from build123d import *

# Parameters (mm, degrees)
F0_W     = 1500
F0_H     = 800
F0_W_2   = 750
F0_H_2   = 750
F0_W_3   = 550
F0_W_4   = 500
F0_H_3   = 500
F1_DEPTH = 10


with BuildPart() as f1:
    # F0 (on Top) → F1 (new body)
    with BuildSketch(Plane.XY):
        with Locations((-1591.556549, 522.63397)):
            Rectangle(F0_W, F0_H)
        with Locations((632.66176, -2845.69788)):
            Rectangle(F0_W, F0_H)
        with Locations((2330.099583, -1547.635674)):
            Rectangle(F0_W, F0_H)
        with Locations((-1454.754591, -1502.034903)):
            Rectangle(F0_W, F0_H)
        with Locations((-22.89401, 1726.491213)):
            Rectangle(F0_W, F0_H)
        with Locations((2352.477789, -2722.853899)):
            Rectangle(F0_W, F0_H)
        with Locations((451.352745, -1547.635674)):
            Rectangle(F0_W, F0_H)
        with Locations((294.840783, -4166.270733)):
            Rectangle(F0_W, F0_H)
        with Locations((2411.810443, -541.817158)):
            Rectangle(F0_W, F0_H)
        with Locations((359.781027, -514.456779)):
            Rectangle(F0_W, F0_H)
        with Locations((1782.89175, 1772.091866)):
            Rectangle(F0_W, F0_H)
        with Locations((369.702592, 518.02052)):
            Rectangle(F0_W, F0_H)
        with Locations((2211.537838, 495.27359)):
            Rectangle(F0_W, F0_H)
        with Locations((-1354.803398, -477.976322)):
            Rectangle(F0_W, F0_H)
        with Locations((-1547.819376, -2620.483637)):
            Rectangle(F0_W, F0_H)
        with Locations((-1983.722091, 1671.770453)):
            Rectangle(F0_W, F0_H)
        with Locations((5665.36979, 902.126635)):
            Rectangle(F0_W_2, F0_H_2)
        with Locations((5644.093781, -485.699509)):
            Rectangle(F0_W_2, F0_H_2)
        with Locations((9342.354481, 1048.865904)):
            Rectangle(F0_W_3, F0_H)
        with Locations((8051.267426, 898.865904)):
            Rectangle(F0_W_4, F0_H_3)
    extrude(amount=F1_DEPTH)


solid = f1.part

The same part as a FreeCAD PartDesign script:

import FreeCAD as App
import Part
import Sketcher

V = App.Vector


def add_polygon(sketch, points):
    """Adds a closed chain of lines whose ends are joined by coincident constraints."""
    first, n = sketch.GeometryCount, len(points)
    for a, b in zip(points, points[1:] + points[:1]):
        sketch.addGeometry(Part.LineSegment(App.Vector(*a, 0), App.Vector(*b, 0)), False)
    for i in range(n):
        sketch.addConstraint(Sketcher.Constraint("Coincident", first + i, 2, first + (i + 1) % n, 1))

doc = App.newDocument("Part")
body = doc.addObject("PartDesign::Body", "Body")
body.AllowCompound = True

# Sketch on XY plane
sketch1 = body.newObject("Sketcher::SketchObject", "Sketch")
sketch1.AttachmentSupport = (doc.getObject("XY_Plane"), [""])
sketch1.MapMode = "FlatFace"
add_polygon(sketch1, [(-2342, 923), (-2342, 123), (-842, 123), (-842, 923)])  # lines 0-3
add_polygon(sketch1, [(-117, -2446), (-117, -3246), (1383, -3246), (1383, -2446)])  # lines 4-7
add_polygon(sketch1, [(1580, -1148), (1580, -1948), (3080, -1948), (3080, -1148)])  # lines 8-11
add_polygon(sketch1, [(-2205, -1102), (-2205, -1902), (-705, -1902), (-705, -1102)])  # lines 12-15
add_polygon(sketch1, [(-773, 2126), (-773, 1326), (727, 1326), (727, 2126)])  # lines 16-19
add_polygon(sketch1, [(1602, -2323), (1602, -3123), (3102, -3123), (3102, -2323)])  # lines 20-23
add_polygon(sketch1, [(-299, -1148), (-299, -1948), (1201, -1948), (1201, -1148)])  # lines 24-27
add_polygon(sketch1, [(-455, -3766), (-455, -4566), (1045, -4566), (1045, -3766)])  # lines 28-31
add_polygon(sketch1, [(1662, -142), (1662, -942), (3162, -942), (3162, -142)])  # lines 32-35
add_polygon(sketch1, [(-390, -114), (-390, -914), (1110, -914), (1110, -114)])  # lines 36-39
add_polygon(sketch1, [(1033, 2172), (1033, 1372), (2533, 1372), (2533, 2172)])  # lines 40-43
add_polygon(sketch1, [(-380, 918), (-380, 118), (1120, 118), (1120, 918)])  # lines 44-47
add_polygon(sketch1, [(1462, 895), (1462, 95), (2962, 95), (2962, 895)])  # lines 48-51
add_polygon(sketch1, [(-2105, -78), (-2105, -878), (-605, -878), (-605, -78)])  # lines 52-55
add_polygon(sketch1, [(-2298, -2220), (-2298, -3020), (-798, -3020), (-798, -2220)])  # lines 56-59
add_polygon(sketch1, [(-2734, 2072), (-2734, 1272), (-1234, 1272), (-1234, 2072)])  # lines 60-63
add_polygon(sketch1, [(5290, 1277), (5290, 527), (6040, 527), (6040, 1277)])  # lines 64-67
add_polygon(sketch1, [(5269, -111), (5269, -861), (6019, -861), (6019, -111)])  # lines 68-71
add_polygon(sketch1, [(9067, 1449), (9067, 649), (9617, 649), (9617, 1449)])  # lines 72-75
add_polygon(sketch1, [(7801, 1149), (7801, 649), (8301, 649), (8301, 1149)])  # lines 76-79
sketch1.addConstraint([
    Sketcher.Constraint("Vertical", 0),
    Sketcher.Constraint("Horizontal", 1),
    Sketcher.Constraint("Vertical", 2),
    Sketcher.Constraint("Horizontal", 3),
    Sketcher.Constraint("Vertical", 4),
    Sketcher.Constraint("Horizontal", 5),
    Sketcher.Constraint("Vertical", 6),
    Sketcher.Constraint("Horizontal", 7),
    Sketcher.Constraint("Vertical", 8),
    Sketcher.Constraint("Horizontal", 9),
    Sketcher.Constraint("Vertical", 10),
    Sketcher.Constraint("Horizontal", 11),
    Sketcher.Constraint("Vertical", 12),
    Sketcher.Constraint("Horizontal", 13),
    Sketcher.Constraint("Vertical", 14),
    Sketcher.Constraint("Horizontal", 15),
    Sketcher.Constraint("Vertical", 16),
    Sketcher.Constraint("Horizontal", 17),
    Sketcher.Constraint("Vertical", 18),
    Sketcher.Constraint("Horizontal", 19),
    Sketcher.Constraint("Vertical", 20),
    Sketcher.Constraint("Horizontal", 21),
    Sketcher.Constraint("Vertical", 22),
    Sketcher.Constraint("Horizontal", 23),
    Sketcher.Constraint("Vertical", 24),
    Sketcher.Constraint("Horizontal", 25),
    Sketcher.Constraint("Vertical", 26),
    Sketcher.Constraint("Horizontal", 27),
    Sketcher.Constraint("Vertical", 28),
    Sketcher.Constraint("Horizontal", 29),
    Sketcher.Constraint("Vertical", 30),
    Sketcher.Constraint("Horizontal", 31),
    Sketcher.Constraint("Vertical", 32),
    Sketcher.Constraint("Horizontal", 33),
    Sketcher.Constraint("Vertical", 34),
    Sketcher.Constraint("Horizontal", 35),
    Sketcher.Constraint("Vertical", 36),
    Sketcher.Constraint("Horizontal", 37),
    Sketcher.Constraint("Vertical", 38),
    Sketcher.Constraint("Horizontal", 39),
    Sketcher.Constraint("Vertical", 40),
    Sketcher.Constraint("Horizontal", 41),
    Sketcher.Constraint("Vertical", 42),
    Sketcher.Constraint("Horizontal", 43),
    Sketcher.Constraint("Vertical", 44),
    Sketcher.Constraint("Horizontal", 45),
    Sketcher.Constraint("Vertical", 46),
    Sketcher.Constraint("Horizontal", 47),
    Sketcher.Constraint("Vertical", 48),
    Sketcher.Constraint("Horizontal", 49),
    Sketcher.Constraint("Vertical", 50),
    Sketcher.Constraint("Horizontal", 51),
    Sketcher.Constraint("Vertical", 52),
    Sketcher.Constraint("Horizontal", 53),
    Sketcher.Constraint("Vertical", 54),
    Sketcher.Constraint("Horizontal", 55),
    Sketcher.Constraint("Vertical", 56),
    Sketcher.Constraint("Horizontal", 57),
    Sketcher.Constraint("Vertical", 58),
    Sketcher.Constraint("Horizontal", 59),
    Sketcher.Constraint("Vertical", 60),
    Sketcher.Constraint("Horizontal", 61),
    Sketcher.Constraint("Vertical", 62),
    Sketcher.Constraint("Horizontal", 63),
    Sketcher.Constraint("Vertical", 64),
    Sketcher.Constraint("Horizontal", 65),
    Sketcher.Constraint("Vertical", 66),
    Sketcher.Constraint("Horizontal", 67),
    Sketcher.Constraint("Vertical", 68),
    Sketcher.Constraint("Horizontal", 69),
    Sketcher.Constraint("Vertical", 70),
    Sketcher.Constraint("Horizontal", 71),
    Sketcher.Constraint("Vertical", 72),
    Sketcher.Constraint("Horizontal", 73),
    Sketcher.Constraint("Vertical", 74),
    Sketcher.Constraint("Horizontal", 75),
    Sketcher.Constraint("Vertical", 76),
    Sketcher.Constraint("Horizontal", 77),
    Sketcher.Constraint("Vertical", 78),
    Sketcher.Constraint("Horizontal", 79),
    Sketcher.Constraint("Horizontal", 9, 2, 24, 2),
    Sketcher.Constraint("Horizontal", 11, 2, 26, 2),
    Sketcher.Constraint("Horizontal", 73, 2, 76, 2),
    Sketcher.Constraint("Equal", 3, 5),
    Sketcher.Constraint("Equal", 7, 9),
    Sketcher.Constraint("Equal", 11, 13),
    Sketcher.Constraint("Equal", 15, 17),
    Sketcher.Constraint("Equal", 19, 21),
    Sketcher.Constraint("Equal", 23, 25),
    Sketcher.Constraint("Equal", 27, 29),
    Sketcher.Constraint("Equal", 31, 33),
    Sketcher.Constraint("Equal", 35, 37),
    Sketcher.Constraint("Equal", 39, 41),
    Sketcher.Constraint("Equal", 43, 45),
    Sketcher.Constraint("Equal", 47, 49),
    Sketcher.Constraint("Equal", 51, 53),
    Sketcher.Constraint("Equal", 55, 57),
    Sketcher.Constraint("Equal", 59, 61),
    Sketcher.Constraint("Equal", 67, 69),
    Sketcher.Constraint("Equal", 2, 4),
    Sketcher.Constraint("Equal", 6, 8),
    Sketcher.Constraint("Equal", 10, 12),
    Sketcher.Constraint("Equal", 14, 16),
    Sketcher.Constraint("Equal", 18, 20),
    Sketcher.Constraint("Equal", 26, 28),
    Sketcher.Constraint("Equal", 30, 32),
    Sketcher.Constraint("Equal", 34, 36),
    Sketcher.Constraint("Equal", 38, 40),
    Sketcher.Constraint("Equal", 42, 44),
    Sketcher.Constraint("Equal", 46, 48),
    Sketcher.Constraint("Equal", 50, 52),
    Sketcher.Constraint("Equal", 54, 56),
    Sketcher.Constraint("Equal", 58, 60),
    Sketcher.Constraint("Equal", 71, 64),
    Sketcher.Constraint("Equal", 66, 68),
    Sketcher.Constraint("Equal", 62, 72),
    Sketcher.Constraint("Equal", 79, 76),
    Sketcher.Constraint("DistanceX", 1, 1, 1, 2, 1500.0),
    Sketcher.Constraint("DistanceX", 65, 1, 65, 2, 750.0),
    Sketcher.Constraint("DistanceX", 73, 1, 73, 2, 550.0),
    Sketcher.Constraint("DistanceX", 77, 1, 77, 2, 500.0),
    Sketcher.Constraint("DistanceY", 0, 2, 0, 1, 800.0),
    Sketcher.Constraint("DistanceY", 20, 2, -1, 1, 3122.853899),
    Sketcher.Constraint("DistanceX", 52, 2, -1, 1, 2104.803398),
    Sketcher.Constraint("DistanceX", 0, 2, -1, 1, 2341.556549),
    Sketcher.Constraint("DistanceY", -1, 1, 0, 2, 122.63397),
    Sketcher.Constraint("DistanceX", 4, 2, -1, 1, 117.33824),
    Sketcher.Constraint("DistanceY", 4, 2, -1, 1, 3245.69788),
    Sketcher.Constraint("DistanceX", 12, 2, -1, 1, 2204.754591),
    Sketcher.Constraint("DistanceX", 16, 2, -1, 1, 772.89401),
    Sketcher.Constraint("DistanceX", -1, 1, 20, 2, 1602.477789),
    Sketcher.Constraint("DistanceY", 32, 2, -1, 1, 941.817158),
    Sketcher.Constraint("DistanceY", 36, 2, -1, 1, 914.456779),
    Sketcher.Constraint("DistanceX", -1, 1, 40, 2, 1032.89175),
    Sketcher.Constraint("DistanceX", 44, 2, -1, 1, 380.297408),
    Sketcher.Constraint("DistanceY", -1, 1, 44, 2, 118.02052),
    Sketcher.Constraint("DistanceX", -1, 1, 48, 2, 1461.537838),
    Sketcher.Constraint("DistanceY", -1, 1, 48, 2, 95.27359),
    Sketcher.Constraint("DistanceY", 52, 2, -1, 1, 877.976322),
    Sketcher.Constraint("DistanceX", 60, 2, -1, 1, 2733.722091),
    Sketcher.Constraint("DistanceX", -1, 1, 64, 2, 5290.36979),
    Sketcher.Constraint("DistanceX", -1, 1, 68, 2, 5269.093781),
    Sketcher.Constraint("DistanceY", 68, 2, -1, 1, 860.699509),
    Sketcher.Constraint("DistanceX", -1, 1, 72, 2, 9067.354481),
    Sketcher.Constraint("DistanceX", -1, 1, 8, 2, 1580.099583),
    Sketcher.Constraint("DistanceY", 8, 2, -1, 1, 1947.635674),
    Sketcher.Constraint("DistanceY", 12, 2, -1, 1, 1902.034903),
    Sketcher.Constraint("DistanceY", -1, 1, 16, 2, 1326.491213),
    Sketcher.Constraint("DistanceX", 24, 2, -1, 1, 298.647255),
    Sketcher.Constraint("DistanceX", 28, 2, -1, 1, 455.159217),
    Sketcher.Constraint("DistanceY", 28, 2, -1, 1, 4566.270733),
    Sketcher.Constraint("DistanceX", -1, 1, 32, 2, 1661.810443),
    Sketcher.Constraint("DistanceX", 36, 2, -1, 1, 390.218973),
    Sketcher.Constraint("DistanceY", -1, 1, 40, 2, 1372.091866),
    Sketcher.Constraint("DistanceX", 56, 2, -1, 1, 2297.819376),
    Sketcher.Constraint("DistanceY", 56, 2, -1, 1, 3020.483637),
    Sketcher.Constraint("DistanceY", -1, 1, 60, 2, 1271.770453),
    Sketcher.Constraint("DistanceY", -1, 1, 64, 2, 527.126635),
    Sketcher.Constraint("DistanceY", -1, 1, 72, 2, 648.865904),
    Sketcher.Constraint("DistanceX", -1, 1, 76, 2, 7801.267426),
])
pad1 = body.newObject("PartDesign::Pad", "Pad")
pad1.Profile = sketch1
pad1.Length = 10

doc.recompute()
